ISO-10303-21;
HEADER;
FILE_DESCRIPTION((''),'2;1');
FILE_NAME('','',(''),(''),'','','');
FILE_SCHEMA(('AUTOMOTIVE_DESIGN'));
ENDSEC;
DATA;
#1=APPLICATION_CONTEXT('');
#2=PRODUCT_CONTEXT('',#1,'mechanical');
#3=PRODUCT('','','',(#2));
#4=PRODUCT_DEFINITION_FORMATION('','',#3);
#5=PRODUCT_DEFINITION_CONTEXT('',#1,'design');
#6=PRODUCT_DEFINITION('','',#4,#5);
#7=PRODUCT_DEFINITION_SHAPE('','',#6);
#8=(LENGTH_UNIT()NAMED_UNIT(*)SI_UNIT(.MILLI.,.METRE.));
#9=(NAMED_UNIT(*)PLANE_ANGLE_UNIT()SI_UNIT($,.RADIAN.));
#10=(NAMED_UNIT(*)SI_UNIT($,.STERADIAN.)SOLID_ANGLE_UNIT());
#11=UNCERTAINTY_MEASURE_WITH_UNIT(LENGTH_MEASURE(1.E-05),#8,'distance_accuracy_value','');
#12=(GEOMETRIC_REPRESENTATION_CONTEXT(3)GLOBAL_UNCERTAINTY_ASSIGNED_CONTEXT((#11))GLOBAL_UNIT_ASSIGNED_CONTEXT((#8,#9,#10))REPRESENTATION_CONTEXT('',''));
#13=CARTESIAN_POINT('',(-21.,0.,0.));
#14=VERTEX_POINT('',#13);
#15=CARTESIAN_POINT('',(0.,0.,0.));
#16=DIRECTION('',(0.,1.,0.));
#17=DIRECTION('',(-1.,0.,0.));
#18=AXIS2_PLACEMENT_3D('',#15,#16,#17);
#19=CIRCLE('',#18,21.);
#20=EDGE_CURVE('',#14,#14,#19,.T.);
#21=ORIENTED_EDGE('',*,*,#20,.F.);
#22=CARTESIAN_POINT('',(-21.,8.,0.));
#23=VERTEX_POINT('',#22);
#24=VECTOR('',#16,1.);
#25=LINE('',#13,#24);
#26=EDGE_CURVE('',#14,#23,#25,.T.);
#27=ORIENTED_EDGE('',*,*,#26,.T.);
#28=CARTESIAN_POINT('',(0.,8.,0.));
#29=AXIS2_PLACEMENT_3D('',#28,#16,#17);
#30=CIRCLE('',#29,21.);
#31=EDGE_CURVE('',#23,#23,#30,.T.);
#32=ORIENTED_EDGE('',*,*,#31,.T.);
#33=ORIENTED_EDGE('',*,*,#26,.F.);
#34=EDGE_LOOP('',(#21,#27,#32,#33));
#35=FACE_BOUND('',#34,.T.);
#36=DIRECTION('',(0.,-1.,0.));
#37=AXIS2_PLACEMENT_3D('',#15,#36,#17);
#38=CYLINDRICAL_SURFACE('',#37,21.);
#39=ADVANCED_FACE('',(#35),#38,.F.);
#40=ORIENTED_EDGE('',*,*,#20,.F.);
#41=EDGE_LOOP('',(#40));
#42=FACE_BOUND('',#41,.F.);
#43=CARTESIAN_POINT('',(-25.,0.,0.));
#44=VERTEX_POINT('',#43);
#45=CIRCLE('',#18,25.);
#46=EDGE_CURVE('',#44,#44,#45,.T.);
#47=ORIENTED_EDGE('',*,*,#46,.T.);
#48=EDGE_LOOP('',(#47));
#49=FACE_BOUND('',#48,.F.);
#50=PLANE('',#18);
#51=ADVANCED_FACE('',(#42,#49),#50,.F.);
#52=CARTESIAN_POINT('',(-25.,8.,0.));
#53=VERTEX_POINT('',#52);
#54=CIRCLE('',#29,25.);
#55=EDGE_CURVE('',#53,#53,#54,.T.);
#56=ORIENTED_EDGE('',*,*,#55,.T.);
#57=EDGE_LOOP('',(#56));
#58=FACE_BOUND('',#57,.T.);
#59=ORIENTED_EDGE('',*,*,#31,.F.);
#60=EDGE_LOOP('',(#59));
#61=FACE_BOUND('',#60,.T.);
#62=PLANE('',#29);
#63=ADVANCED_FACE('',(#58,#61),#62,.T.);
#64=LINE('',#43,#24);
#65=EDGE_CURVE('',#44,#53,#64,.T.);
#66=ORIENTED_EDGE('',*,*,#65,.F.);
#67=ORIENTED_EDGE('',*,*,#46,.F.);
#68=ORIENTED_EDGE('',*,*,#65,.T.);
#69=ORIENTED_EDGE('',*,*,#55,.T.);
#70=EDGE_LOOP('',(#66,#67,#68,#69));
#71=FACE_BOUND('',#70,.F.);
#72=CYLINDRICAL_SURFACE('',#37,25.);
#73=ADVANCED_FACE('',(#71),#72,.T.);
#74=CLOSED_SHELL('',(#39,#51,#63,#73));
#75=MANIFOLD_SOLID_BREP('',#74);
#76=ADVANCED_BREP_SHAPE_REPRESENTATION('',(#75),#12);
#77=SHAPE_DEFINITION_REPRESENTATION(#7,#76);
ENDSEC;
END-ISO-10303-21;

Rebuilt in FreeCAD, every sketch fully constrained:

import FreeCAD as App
import Part
import Sketcher

V = App.Vector
Q = App.Units.Quantity

doc = App.newDocument("Part")
body = doc.addObject("PartDesign::Body", "Body")

# Sketch on XZ plane
sketch1 = body.newObject("Sketcher::SketchObject", "Sketch")
sketch1.AttachmentSupport = (doc.getObject("XZ_Plane"), [""])
sketch1.MapMode = "FlatFace"
sketch1.addGeometry([
    Part.Circle(V(0, 0, 0), V(0, 0, 1), 25),
    Part.Circle(V(0, 0, 0), V(0, 0, 1), 21),
], False)
sketch1.addConstraint([
    Sketcher.Constraint("Coincident", 0, 3, -1, 1),
    Sketcher.Constraint("Coincident", 1, 3, -1, 1),
    Sketcher.Constraint("Diameter", 0, Q("50 mm")),
    Sketcher.Constraint("Diameter", 1, Q("42 mm")),
])
pad1 = body.newObject("PartDesign::Pad", "Pad")
pad1.Profile = sketch1
pad1.Length = 8
pad1.Reversed = True

doc.recompute()
